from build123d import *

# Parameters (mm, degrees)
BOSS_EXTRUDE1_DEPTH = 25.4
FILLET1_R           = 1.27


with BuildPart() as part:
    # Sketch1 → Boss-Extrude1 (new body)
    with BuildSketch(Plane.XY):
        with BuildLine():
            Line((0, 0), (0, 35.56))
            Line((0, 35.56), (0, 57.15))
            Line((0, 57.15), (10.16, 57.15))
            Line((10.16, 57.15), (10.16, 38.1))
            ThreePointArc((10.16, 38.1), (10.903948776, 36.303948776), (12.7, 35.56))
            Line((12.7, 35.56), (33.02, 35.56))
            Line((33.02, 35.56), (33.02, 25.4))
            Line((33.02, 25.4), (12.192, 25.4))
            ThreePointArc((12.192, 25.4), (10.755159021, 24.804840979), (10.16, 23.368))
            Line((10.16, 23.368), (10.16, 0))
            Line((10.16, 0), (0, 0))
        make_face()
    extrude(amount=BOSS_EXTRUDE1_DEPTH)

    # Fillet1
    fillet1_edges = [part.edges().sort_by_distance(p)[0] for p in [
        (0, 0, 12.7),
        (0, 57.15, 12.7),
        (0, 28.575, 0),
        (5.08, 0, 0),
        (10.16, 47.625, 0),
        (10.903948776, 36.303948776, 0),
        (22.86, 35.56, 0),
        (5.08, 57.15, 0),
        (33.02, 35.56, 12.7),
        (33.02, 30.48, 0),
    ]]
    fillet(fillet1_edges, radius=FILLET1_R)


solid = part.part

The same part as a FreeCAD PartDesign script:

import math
import FreeCAD as App
import Part
import Sketcher
from FreeCAD import Vector
Q = App.Units.Quantity


def edges_at(feature, points):
    """Names of the edges that pass closest to the given points."""
    edges = feature.Shape.Edges
    near = lambda p: min(range(len(edges)), key=lambda i: edges[i].distToShape(Part.Vertex(*p))[0])
    return sorted({f"Edge{near(p) + 1}" for p in points})

doc = App.newDocument("Part")
body = doc.addObject("PartDesign::Body", "Body")

# Sketch on XY plane
sketch1 = body.newObject("Sketcher::SketchObject", "Sketch")
sketch1.AttachmentSupport = (doc.getObject("XY_Plane"), [""])
sketch1.MapMode = "FlatFace"
sketch1.addGeometry([
    Part.LineSegment(Vector(0, 57.1, 0), Vector(0, 0, 0)),  # 0
    Part.LineSegment(Vector(0, 0, 0), Vector(10.2, 0, 0)),  # 1
    Part.LineSegment(Vector(10.2, 0, 0), Vector(10.2, 23.4, 0)),  # 2
    Part.ArcOfCircle(Part.Circle(Vector(12.2, 23.4, 0), Vector(0, 0, 1), 2), math.radians(90), math.radians(180)),  # 3
    Part.LineSegment(Vector(12.2, 25.4, 0), Vector(33, 25.4, 0)),  # 4
    Part.LineSegment(Vector(33, 25.4, 0), Vector(33, 35.6, 0)),  # 5
    Part.LineSegment(Vector(33, 35.6, 0), Vector(12.7, 35.6, 0)),  # 6
    Part.ArcOfCircle(Part.Circle(Vector(12.7, 38.1, 0), Vector(0, 0, 1), 2.5), math.radians(-180), math.radians(-90)),  # 7
    Part.LineSegment(Vector(10.2, 38.1, 0), Vector(10.2, 57.1, 0)),  # 8
    Part.LineSegment(Vector(10.2, 57.1, 0), Vector(0, 57.1, 0)),  # 9
], False)
sketch1.addConstraint([
    Sketcher.Constraint("Coincident", 0, 2, 1, 1),
    Sketcher.Constraint("Coincident", 1, 2, 2, 1),
    Sketcher.Constraint("Tangent", 2, 2, 3, 2),
    Sketcher.Constraint("Tangent", 3, 1, 4, 1),
    Sketcher.Constraint("Coincident", 4, 2, 5, 1),
    Sketcher.Constraint("Coincident", 5, 2, 6, 1),
    Sketcher.Constraint("Tangent", 6, 2, 7, 2),
    Sketcher.Constraint("Tangent", 7, 1, 8, 1),
    Sketcher.Constraint("Coincident", 8, 2, 9, 1),
    Sketcher.Constraint("Coincident", 9, 2, 0, 1),
    Sketcher.Constraint("Vertical", 0),
    Sketcher.Constraint("Horizontal", 1),
    Sketcher.Constraint("Vertical", 2),
    Sketcher.Constraint("Horizontal", 4),
    Sketcher.Constraint("Vertical", 5),
    Sketcher.Constraint("Horizontal", 6),
    Sketcher.Constraint("Vertical", 8),
    Sketcher.Constraint("Horizontal", 9),
    Sketcher.Constraint("Coincident", 0, 2, -1, 1),
    Sketcher.Constraint("Vertical", 2, 2, 7, 1),
    Sketcher.Constraint("Equal", 9, 5),
    Sketcher.Constraint("Radius", 7, Q("0.1 in")),
    Sketcher.Constraint("Radius", 3, Q("0.08 in")),
    Sketcher.Constraint("DistanceX", 1, 1, 1, 2, Q("0.4 in")),
    Sketcher.Constraint("DistanceX", 6, 2, 6, 1, Q("0.8 in")),
    Sketcher.Constraint("DistanceY", -1, 1, 3, 1, Q("1 in")),
    Sketcher.Constraint("DistanceY", 0, 2, 0, 1, Q("2.25 in")),
])
pad1 = body.newObject("PartDesign::Pad", "Pad")
pad1.Profile = sketch1
pad1.Length = Q("1 in")
doc.recompute()

fillet = body.newObject("PartDesign::Fillet", "Fillet")
fillet.Base = (pad1, edges_at(pad1, [
    (0, 0, 12.7),
    (0, 57.15, 12.7),
    (0, 28.575, 0),
    (5.08, 0, 0),
    (10.16, 47.625, 0),
    (10.904, 36.304, 0),
    (22.86, 35.56, 0),
    (5.08, 57.15, 0),
    (33.02, 35.56, 12.7),
    (33.02, 30.48, 0),
]))
fillet.Radius = Q("0.05 in")

doc.recompute()
